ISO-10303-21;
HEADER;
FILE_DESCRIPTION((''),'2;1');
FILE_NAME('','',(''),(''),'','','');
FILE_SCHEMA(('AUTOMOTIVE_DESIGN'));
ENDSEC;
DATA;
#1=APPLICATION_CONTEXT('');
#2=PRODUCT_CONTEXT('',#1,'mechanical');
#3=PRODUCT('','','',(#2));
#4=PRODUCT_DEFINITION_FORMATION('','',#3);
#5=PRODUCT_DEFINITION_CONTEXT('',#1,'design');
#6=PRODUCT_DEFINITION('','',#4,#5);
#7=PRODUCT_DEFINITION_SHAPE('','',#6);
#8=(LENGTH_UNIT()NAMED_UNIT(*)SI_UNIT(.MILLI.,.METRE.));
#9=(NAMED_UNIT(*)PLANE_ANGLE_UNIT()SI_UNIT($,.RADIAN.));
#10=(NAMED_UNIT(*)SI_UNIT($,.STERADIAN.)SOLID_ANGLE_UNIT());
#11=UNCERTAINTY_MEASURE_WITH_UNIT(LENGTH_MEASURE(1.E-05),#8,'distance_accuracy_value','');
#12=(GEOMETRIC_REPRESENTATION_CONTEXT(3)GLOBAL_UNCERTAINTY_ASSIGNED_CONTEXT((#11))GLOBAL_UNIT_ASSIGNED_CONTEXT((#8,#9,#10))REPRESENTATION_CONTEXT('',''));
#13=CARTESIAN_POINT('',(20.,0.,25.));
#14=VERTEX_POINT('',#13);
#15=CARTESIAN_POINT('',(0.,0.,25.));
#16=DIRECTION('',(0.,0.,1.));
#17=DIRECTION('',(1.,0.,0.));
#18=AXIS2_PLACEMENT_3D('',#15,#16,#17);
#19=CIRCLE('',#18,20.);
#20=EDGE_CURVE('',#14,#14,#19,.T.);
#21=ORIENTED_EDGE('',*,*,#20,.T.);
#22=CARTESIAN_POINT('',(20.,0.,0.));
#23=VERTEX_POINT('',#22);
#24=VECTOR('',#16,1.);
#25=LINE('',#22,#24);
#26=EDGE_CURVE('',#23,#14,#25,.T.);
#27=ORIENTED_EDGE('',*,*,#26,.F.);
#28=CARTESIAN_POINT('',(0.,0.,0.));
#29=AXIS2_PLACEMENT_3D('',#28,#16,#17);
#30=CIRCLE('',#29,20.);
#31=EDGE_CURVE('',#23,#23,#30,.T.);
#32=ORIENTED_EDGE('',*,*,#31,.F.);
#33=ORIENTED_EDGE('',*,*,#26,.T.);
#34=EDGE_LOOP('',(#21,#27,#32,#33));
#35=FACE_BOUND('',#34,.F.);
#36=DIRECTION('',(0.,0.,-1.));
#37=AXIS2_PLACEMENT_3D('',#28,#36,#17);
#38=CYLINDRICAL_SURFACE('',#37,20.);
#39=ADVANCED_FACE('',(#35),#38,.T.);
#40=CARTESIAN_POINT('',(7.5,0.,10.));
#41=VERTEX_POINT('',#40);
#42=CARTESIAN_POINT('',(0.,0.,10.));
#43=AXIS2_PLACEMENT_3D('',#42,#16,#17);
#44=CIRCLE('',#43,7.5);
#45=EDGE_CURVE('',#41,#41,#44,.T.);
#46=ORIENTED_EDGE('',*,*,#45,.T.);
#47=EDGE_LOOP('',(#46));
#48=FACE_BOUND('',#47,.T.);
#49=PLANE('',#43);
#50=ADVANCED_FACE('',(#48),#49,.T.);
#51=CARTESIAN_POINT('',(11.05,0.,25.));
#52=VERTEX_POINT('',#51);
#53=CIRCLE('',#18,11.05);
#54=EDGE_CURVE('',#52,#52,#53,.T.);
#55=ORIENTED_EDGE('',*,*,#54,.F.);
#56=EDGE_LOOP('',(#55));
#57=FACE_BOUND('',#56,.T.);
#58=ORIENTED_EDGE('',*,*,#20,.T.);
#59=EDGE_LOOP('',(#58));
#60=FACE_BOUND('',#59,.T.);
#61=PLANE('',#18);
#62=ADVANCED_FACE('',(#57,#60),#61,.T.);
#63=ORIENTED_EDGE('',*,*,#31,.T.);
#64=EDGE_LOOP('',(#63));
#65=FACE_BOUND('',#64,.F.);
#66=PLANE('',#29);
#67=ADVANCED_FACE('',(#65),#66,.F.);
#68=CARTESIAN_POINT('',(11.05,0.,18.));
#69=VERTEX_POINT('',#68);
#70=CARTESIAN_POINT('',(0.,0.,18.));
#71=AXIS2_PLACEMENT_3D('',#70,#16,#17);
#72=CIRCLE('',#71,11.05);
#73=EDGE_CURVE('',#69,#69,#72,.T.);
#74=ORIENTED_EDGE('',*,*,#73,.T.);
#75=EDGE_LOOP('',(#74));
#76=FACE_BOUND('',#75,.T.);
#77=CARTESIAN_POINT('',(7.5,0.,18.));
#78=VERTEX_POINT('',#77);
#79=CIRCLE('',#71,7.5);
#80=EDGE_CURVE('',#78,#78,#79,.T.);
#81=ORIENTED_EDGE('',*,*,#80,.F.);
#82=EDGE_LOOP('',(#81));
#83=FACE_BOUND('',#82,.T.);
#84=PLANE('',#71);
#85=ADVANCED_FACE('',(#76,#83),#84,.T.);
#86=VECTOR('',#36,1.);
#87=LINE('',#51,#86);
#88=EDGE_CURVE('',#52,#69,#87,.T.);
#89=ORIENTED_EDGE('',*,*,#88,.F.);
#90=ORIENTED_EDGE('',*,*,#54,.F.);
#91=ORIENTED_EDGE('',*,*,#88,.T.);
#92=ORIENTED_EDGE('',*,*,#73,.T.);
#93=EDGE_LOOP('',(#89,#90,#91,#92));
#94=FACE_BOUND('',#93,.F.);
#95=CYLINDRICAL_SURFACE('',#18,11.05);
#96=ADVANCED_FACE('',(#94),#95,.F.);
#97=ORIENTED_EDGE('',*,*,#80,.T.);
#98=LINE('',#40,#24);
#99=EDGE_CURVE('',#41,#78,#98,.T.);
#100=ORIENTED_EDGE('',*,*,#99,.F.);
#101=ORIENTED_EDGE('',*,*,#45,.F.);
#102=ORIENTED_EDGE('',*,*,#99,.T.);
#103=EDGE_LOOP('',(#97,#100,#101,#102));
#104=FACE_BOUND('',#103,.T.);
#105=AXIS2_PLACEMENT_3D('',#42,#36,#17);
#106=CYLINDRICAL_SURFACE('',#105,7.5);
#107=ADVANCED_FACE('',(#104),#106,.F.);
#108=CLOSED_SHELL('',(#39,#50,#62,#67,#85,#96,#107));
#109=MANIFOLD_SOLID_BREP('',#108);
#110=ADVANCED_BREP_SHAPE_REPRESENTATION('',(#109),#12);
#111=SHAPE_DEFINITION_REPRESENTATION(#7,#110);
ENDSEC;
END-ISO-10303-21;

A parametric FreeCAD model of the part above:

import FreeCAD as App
import Part
import Sketcher

V = App.Vector
Q = App.Units.Quantity

doc = App.newDocument("Part")
params = doc.addObject("Spreadsheet::Sheet", "Params")
for row, (alias, value) in enumerate([
    ("sketch1_diameter", "40 mm"),
    ("pad1_length", "25 mm"),
    ("sketch2_diameter", "22.1 mm"),
    ("pocket1_length", "15 mm"),
    ("sketch3_diameter", "15 mm"),
    ("sketch3_diameter2", "22.1 mm"),
    ("pad2_length", "8 mm"),
], start=1):
    params.set(f"A{row}", alias)
    params.set(f"B{row}", "=" + value)
    params.setAlias(f"B{row}", alias)

body = doc.addObject("PartDesign::Body", "Body")

# Sketch on XY plane
sketch1 = body.newObject("Sketcher::SketchObject", "Sketch")
sketch1.AttachmentSupport = (doc.getObject("XY_Plane"), [""])
sketch1.MapMode = "FlatFace"
sketch1.addGeometry(Part.Circle(V(0, 0, 0), V(0, 0, 1), 20), False)
sketch1.addConstraint([
    Sketcher.Constraint("Coincident", 0, 3, -1, 1),
    Sketcher.Constraint("Diameter", 0, Q("40 mm")),
])
sketch1.setExpression("Constraints[1]", "Params.sketch1_diameter")
pad1 = body.newObject("PartDesign::Pad", "Pad")
pad1.Profile = sketch1
pad1.setExpression("Length", "Params.pad1_length")

# Sketch on XY plane
sketch2 = body.newObject("Sketcher::SketchObject", "Sketch001")
sketch2.AttachmentSupport = (doc.getObject("XY_Plane"), [""])
sketch2.MapMode = "FlatFace"
sketch2.AttachmentOffset = App.Placement(V(0, 0, 25), App.Rotation())
sketch2.addGeometry(Part.Circle(V(0, 0, 0), V(0, 0, 1), 11), False)
sketch2.addConstraint([
    Sketcher.Constraint("Coincident", 0, 3, -1, 1),
    Sketcher.Constraint("Diameter", 0, Q("22.1 mm")),
])
sketch2.setExpression("Constraints[1]", "Params.sketch2_diameter")
pocket1 = body.newObject("PartDesign::Pocket", "Pocket")
pocket1.Profile = sketch2
pocket1.setExpression("Length", "Params.pocket1_length")

# Sketch on XY plane
sketch3 = body.newObject("Sketcher::SketchObject", "Sketch002")
sketch3.AttachmentSupport = (doc.getObject("XY_Plane"), [""])
sketch3.MapMode = "FlatFace"
sketch3.AttachmentOffset = App.Placement(V(0, 0, 10), App.Rotation())
sketch3.addGeometry([
    Part.Circle(V(0, 0, 0), V(0, 0, 1), 11),
    Part.Circle(V(0, 0, 0), V(0, 0, 1), 8),
], False)
sketch3.addConstraint([
    Sketcher.Constraint("Coincident", 0, 3, -1, 1),
    Sketcher.Constraint("Coincident", 1, 3, -1, 1),
    Sketcher.Constraint("Diameter", 1, Q("15 mm")),
    Sketcher.Constraint("Diameter", 0, Q("22.1 mm")),
])
sketch3.setExpression("Constraints[2]", "Params.sketch3_diameter")
sketch3.setExpression("Constraints[3]", "Params.sketch3_diameter2")
pad2 = body.newObject("PartDesign::Pad", "Pad001")
pad2.Profile = sketch3
pad2.setExpression("Length", "Params.pad2_length")

doc.recompute()
